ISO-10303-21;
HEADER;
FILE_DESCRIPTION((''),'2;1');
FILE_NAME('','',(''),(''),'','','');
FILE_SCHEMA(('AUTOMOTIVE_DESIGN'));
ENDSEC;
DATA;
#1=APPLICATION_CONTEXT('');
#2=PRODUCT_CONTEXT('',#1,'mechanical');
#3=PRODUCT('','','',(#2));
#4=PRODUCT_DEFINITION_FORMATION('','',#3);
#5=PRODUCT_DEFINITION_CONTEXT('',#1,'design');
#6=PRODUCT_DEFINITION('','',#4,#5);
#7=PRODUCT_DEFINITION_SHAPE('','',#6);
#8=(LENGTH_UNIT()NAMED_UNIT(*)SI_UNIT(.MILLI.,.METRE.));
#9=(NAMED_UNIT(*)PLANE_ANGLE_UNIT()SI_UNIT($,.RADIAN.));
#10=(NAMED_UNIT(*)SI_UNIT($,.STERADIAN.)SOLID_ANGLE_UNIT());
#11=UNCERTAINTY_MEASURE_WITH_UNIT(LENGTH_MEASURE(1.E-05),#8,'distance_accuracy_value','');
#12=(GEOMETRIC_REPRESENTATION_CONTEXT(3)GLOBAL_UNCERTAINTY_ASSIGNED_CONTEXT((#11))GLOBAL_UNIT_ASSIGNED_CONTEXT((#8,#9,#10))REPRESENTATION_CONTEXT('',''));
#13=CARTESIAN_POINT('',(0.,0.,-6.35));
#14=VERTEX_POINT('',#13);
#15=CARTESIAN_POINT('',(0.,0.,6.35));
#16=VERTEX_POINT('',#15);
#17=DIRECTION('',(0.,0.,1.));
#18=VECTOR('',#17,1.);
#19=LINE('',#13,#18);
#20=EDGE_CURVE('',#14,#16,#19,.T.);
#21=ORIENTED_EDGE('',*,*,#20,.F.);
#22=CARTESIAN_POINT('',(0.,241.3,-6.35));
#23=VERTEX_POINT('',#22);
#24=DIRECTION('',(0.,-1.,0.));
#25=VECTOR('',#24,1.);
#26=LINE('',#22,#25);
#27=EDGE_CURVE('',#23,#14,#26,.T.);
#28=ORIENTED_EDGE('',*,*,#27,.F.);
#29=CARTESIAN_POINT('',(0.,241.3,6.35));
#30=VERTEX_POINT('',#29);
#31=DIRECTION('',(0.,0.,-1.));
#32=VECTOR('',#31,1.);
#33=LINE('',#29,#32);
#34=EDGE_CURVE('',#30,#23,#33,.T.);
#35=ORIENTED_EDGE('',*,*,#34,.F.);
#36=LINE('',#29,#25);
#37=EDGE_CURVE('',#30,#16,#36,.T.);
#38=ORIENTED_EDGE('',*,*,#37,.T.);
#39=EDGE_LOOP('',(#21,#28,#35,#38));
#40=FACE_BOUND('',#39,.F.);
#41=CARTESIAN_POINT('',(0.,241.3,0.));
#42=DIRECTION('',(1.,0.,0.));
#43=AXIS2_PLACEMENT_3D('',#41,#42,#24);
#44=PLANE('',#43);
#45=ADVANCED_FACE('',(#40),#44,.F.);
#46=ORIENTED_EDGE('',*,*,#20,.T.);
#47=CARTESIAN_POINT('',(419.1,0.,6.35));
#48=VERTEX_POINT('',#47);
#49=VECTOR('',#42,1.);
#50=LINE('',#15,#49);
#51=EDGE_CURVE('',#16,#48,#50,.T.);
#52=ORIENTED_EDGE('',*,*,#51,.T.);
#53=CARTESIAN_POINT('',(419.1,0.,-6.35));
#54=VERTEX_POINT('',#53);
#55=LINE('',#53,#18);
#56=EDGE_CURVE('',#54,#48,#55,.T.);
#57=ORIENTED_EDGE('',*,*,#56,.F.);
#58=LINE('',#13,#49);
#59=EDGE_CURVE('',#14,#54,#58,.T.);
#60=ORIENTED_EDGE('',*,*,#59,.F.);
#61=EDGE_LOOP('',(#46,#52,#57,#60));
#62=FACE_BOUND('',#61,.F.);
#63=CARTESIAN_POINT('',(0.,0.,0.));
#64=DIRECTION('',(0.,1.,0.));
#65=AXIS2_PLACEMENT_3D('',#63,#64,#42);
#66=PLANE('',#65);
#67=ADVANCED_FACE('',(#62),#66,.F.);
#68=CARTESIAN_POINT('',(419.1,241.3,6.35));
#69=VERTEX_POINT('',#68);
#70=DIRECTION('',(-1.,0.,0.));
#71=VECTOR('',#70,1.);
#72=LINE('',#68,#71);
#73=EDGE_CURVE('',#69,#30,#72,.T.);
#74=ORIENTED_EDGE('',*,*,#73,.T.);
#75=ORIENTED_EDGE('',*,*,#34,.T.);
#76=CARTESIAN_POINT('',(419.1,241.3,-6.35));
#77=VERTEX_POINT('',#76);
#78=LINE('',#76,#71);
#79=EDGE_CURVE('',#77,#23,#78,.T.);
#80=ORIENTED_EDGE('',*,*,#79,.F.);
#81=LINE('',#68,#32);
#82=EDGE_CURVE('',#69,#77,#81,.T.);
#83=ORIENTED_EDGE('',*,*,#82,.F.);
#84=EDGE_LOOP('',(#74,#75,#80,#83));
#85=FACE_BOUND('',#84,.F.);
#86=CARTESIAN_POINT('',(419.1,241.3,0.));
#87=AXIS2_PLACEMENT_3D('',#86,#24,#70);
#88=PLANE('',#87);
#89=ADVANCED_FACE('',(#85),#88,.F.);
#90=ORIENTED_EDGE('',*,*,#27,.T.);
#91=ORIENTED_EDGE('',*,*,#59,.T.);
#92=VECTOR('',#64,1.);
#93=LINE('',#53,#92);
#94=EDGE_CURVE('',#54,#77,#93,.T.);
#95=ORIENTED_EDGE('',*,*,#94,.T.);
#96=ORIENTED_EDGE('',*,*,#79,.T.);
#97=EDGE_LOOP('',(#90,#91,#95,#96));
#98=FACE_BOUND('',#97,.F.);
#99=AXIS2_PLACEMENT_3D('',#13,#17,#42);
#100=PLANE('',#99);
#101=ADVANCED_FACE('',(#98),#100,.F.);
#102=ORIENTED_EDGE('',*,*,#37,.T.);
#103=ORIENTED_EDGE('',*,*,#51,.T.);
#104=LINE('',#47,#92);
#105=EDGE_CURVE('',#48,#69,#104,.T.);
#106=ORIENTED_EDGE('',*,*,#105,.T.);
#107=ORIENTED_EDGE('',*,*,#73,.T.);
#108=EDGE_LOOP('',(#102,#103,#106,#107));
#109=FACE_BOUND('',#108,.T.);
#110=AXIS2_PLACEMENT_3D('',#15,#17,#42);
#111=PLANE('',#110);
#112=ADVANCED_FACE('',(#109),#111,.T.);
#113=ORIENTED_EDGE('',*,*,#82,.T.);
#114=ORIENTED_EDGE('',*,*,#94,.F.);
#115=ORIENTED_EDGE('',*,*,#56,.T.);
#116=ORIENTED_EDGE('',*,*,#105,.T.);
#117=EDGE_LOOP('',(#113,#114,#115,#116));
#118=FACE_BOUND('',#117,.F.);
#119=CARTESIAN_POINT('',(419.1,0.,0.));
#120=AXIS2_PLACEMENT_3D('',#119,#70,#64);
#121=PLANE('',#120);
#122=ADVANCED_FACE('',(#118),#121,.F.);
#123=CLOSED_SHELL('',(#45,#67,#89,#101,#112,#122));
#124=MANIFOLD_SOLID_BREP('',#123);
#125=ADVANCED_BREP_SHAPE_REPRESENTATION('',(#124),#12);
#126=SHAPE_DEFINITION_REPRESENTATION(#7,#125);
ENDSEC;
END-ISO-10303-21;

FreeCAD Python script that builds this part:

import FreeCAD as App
import Part
import Sketcher
Q = App.Units.Quantity


def add_polygon(sketch, points):
    """Adds a closed chain of lines whose ends are joined by coincident constraints."""
    first, n = sketch.GeometryCount, len(points)
    for a, b in zip(points, points[1:] + points[:1]):
        sketch.addGeometry(Part.LineSegment(App.Vector(*a, 0), App.Vector(*b, 0)), False)
    for i in range(n):
        sketch.addConstraint(Sketcher.Constraint("Coincident", first + i, 2, first + (i + 1) % n, 1))

doc = App.newDocument("Part")
body = doc.addObject("PartDesign::Body", "Body")

# Sketch on XY plane
sketch1 = body.newObject("Sketcher::SketchObject", "Sketch")
sketch1.AttachmentSupport = (doc.getObject("XY_Plane"), [""])
sketch1.MapMode = "FlatFace"
add_polygon(sketch1, [(0, 241), (0, 0), (419, 0), (419, 241)])  # lines 0-3
sketch1.addConstraint([
    Sketcher.Constraint("Vertical", 0),
    Sketcher.Constraint("Horizontal", 1),
    Sketcher.Constraint("Vertical", 2),
    Sketcher.Constraint("Horizontal", 3),
    Sketcher.Constraint("Coincident", 0, 2, -1, 1),
    Sketcher.Constraint("DistanceX", 1, 1, 1, 2, Q("16.5 in")),
    Sketcher.Constraint("DistanceY", 0, 2, 0, 1, Q("9.5 in")),
])
pad1 = body.newObject("PartDesign::Pad", "Pad")
pad1.Profile = sketch1
pad1.Length = Q("0.5 in")
pad1.Midplane = True

doc.recompute()
